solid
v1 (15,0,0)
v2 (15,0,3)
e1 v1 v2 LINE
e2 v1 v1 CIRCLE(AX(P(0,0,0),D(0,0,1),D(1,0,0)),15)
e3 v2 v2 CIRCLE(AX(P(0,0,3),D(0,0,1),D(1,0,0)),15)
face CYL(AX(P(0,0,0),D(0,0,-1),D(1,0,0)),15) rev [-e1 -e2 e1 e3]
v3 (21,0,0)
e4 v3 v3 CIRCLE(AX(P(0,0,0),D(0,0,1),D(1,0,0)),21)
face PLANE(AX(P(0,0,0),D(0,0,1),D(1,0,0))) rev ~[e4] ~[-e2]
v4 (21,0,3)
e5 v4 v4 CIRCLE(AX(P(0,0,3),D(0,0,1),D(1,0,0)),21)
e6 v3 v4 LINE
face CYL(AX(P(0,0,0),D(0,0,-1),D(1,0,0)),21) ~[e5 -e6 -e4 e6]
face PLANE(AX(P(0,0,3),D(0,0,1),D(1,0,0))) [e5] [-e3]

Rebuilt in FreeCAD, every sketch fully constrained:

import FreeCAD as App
import Part
import Sketcher

V = App.Vector

doc = App.newDocument("Part")
params = doc.addObject("Spreadsheet::Sheet", "Params")
for row, (alias, value) in enumerate([
    ("sketch1_diameter", "42 mm"),
    ("sketch1_diameter2", "30 mm"),
    ("pad1_length", "3 mm"),
], start=1):
    params.set(f"A{row}", alias)
    params.set(f"B{row}", "=" + value)
    params.setAlias(f"B{row}", alias)

body = doc.addObject("PartDesign::Body", "Body")

# Sketch on XY plane
sketch1 = body.newObject("Sketcher::SketchObject", "Sketch")
sketch1.AttachmentSupport = (doc.getObject("XY_Plane"), [""])
sketch1.MapMode = "FlatFace"
sketch1.addGeometry([
    Part.Circle(V(0, 0, 0), V(0, 0, 1), 21),
    Part.Circle(V(0, 0, 0), V(0, 0, 1), 15),
], False)
sketch1.addConstraint([
    Sketcher.Constraint("Coincident", 0, 3, -1, 1),
    Sketcher.Constraint("Coincident", 1, 3, -1, 1),
    Sketcher.Constraint("Diameter", 0, 42.0),
    Sketcher.Constraint("Diameter", 1, 30.0),
])
sketch1.setExpression("Constraints[2]", "Params.sketch1_diameter")
sketch1.setExpression("Constraints[3]", "Params.sketch1_diameter2")
pad1 = body.newObject("PartDesign::Pad", "Pad")
pad1.Profile = sketch1
pad1.setExpression("Length", "Params.pad1_length")

doc.recompute()
